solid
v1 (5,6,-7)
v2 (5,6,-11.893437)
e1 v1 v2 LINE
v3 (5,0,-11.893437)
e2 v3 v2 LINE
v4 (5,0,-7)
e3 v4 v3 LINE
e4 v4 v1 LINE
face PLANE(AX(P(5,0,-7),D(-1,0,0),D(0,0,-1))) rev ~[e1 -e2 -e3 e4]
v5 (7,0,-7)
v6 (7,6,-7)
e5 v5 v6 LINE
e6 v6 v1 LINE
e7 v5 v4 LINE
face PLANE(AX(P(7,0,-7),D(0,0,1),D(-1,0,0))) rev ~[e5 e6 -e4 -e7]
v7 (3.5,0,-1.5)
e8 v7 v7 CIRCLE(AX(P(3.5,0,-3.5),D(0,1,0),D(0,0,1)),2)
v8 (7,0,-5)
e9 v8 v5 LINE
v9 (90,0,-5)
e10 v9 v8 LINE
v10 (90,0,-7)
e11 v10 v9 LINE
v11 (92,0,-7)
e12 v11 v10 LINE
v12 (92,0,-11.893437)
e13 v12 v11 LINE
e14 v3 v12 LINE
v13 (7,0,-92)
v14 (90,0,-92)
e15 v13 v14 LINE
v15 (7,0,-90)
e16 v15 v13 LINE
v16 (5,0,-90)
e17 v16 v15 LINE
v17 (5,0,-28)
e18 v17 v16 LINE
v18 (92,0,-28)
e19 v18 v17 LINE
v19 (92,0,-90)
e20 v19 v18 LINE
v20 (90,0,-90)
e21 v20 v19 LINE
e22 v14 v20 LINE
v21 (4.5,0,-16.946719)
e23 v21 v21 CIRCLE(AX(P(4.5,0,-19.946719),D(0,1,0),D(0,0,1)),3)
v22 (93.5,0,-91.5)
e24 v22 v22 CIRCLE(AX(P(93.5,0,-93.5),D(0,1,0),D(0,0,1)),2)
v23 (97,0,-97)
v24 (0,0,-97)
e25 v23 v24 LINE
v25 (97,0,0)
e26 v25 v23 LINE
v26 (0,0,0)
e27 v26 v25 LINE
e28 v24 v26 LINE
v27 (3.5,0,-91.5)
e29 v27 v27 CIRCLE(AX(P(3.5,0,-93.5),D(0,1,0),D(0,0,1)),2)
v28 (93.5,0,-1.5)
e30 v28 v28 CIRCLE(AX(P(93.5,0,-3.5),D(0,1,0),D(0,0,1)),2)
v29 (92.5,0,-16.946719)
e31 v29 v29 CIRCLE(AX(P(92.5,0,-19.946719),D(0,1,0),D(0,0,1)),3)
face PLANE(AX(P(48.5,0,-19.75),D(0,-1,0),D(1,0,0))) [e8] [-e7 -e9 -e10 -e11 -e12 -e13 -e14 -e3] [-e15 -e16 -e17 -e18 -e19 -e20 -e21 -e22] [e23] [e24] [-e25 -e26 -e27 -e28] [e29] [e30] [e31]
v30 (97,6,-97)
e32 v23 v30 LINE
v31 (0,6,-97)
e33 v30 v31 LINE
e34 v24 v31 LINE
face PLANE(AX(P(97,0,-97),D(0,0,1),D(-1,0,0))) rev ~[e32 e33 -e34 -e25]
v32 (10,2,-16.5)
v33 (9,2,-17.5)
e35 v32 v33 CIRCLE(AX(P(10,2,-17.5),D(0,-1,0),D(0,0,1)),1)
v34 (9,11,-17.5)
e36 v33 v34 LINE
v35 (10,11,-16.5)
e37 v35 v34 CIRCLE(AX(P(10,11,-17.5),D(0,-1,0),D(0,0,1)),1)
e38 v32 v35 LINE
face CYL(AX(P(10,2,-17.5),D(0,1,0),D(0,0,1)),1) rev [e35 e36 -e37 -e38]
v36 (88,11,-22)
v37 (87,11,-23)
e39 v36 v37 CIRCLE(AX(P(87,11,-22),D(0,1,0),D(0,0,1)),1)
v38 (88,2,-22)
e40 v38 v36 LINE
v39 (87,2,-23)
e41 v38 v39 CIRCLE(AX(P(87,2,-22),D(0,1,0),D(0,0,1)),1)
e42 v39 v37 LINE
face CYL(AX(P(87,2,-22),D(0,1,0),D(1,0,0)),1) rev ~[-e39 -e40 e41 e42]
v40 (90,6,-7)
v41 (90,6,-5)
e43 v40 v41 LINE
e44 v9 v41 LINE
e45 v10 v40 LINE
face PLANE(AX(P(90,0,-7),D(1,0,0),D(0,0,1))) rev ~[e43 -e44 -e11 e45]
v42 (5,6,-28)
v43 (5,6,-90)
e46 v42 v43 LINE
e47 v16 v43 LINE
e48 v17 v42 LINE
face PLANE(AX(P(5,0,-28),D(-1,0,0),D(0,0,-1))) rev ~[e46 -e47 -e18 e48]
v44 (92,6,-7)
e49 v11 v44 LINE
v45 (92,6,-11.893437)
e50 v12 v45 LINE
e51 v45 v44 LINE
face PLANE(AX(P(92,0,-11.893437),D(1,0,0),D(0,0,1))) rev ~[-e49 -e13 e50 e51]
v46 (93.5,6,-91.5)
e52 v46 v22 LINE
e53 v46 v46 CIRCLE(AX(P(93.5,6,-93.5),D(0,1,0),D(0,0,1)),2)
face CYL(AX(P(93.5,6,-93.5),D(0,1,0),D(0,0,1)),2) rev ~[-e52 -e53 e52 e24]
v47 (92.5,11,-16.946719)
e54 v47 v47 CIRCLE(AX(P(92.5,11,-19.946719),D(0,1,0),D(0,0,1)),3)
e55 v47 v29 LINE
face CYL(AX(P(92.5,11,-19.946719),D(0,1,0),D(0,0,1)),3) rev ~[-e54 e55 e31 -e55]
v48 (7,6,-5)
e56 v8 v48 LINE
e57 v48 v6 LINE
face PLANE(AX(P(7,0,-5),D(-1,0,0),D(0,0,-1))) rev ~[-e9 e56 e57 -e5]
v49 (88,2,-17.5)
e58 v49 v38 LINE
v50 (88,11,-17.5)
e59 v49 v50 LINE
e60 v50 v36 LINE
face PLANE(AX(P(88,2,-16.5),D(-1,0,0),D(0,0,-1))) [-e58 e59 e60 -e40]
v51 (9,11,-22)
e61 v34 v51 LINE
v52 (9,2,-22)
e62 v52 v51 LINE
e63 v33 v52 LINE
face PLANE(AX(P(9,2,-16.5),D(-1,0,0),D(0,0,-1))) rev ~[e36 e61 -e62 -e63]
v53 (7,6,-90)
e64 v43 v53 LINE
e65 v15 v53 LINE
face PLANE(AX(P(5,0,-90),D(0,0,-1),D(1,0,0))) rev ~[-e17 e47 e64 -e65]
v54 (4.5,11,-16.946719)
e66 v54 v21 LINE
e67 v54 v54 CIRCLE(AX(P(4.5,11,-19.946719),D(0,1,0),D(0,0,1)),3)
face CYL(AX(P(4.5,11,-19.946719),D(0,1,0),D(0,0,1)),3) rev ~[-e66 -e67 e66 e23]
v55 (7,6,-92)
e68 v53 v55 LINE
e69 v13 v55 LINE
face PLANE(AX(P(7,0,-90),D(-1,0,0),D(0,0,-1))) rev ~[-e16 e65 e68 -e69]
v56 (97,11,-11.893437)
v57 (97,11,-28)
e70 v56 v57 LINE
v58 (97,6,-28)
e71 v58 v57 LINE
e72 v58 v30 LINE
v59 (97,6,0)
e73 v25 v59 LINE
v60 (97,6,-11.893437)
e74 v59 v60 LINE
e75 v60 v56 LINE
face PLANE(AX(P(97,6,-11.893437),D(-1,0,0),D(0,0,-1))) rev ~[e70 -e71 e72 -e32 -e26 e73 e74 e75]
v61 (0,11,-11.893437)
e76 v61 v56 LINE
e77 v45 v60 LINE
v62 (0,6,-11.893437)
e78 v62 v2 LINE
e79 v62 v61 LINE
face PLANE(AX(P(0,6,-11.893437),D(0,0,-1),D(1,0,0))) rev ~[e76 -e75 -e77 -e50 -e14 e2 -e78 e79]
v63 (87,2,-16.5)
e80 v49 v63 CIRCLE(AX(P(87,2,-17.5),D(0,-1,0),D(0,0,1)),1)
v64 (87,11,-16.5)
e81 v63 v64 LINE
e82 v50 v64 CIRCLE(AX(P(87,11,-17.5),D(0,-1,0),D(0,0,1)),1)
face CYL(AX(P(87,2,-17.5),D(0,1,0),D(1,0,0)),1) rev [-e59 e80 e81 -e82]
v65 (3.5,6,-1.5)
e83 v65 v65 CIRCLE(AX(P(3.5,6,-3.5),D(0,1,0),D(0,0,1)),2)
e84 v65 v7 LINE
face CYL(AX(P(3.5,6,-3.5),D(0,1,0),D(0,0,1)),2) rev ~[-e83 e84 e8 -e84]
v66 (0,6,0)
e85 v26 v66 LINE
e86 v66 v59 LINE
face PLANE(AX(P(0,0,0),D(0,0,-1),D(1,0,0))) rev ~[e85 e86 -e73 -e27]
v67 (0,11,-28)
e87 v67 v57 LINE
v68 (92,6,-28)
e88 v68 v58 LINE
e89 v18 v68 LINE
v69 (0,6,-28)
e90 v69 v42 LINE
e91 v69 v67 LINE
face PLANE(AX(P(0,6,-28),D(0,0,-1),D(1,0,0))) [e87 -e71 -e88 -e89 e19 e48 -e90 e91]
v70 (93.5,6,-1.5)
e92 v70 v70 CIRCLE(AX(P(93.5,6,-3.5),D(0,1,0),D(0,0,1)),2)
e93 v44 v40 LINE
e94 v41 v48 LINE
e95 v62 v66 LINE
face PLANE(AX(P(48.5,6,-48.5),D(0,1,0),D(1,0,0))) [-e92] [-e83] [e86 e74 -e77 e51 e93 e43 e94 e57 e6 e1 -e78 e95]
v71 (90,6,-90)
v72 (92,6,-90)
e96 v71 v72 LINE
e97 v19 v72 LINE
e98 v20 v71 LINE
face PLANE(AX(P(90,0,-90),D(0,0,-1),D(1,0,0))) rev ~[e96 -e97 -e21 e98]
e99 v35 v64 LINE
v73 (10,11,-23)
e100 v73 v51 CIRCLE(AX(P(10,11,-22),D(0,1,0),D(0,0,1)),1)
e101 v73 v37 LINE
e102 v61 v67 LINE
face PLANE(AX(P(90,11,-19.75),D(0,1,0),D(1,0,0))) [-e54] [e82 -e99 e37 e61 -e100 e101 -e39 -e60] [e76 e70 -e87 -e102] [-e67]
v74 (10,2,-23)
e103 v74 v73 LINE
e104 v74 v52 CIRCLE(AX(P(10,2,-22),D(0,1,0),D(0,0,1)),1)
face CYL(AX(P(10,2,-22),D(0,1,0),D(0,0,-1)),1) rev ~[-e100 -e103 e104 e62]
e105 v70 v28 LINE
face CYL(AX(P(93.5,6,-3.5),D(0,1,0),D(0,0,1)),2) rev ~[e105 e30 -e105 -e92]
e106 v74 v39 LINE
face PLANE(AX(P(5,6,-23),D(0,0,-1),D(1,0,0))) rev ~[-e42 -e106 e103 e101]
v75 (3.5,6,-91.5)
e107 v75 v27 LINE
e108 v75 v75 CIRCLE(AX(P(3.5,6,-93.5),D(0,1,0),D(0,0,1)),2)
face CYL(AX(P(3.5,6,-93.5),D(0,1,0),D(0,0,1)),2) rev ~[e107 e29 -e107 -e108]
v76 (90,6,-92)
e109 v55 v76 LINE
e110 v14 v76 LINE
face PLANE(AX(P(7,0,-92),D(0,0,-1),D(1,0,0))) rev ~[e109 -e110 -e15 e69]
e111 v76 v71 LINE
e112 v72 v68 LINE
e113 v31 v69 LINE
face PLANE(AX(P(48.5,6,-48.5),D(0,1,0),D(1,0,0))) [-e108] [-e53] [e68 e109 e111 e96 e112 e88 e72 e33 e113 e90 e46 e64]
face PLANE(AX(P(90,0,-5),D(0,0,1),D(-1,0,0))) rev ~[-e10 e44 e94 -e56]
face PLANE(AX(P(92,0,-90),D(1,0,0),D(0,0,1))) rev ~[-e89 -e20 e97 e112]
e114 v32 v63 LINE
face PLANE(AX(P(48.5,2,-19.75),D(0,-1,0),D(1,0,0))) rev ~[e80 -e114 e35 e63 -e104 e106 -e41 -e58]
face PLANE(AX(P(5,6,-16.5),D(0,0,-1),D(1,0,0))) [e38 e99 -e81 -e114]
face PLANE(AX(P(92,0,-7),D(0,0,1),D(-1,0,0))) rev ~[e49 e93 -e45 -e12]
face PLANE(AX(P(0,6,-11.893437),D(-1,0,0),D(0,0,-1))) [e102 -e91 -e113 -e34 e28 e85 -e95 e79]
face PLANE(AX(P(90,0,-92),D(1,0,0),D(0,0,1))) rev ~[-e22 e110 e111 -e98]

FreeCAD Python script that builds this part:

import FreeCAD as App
import Part
import Sketcher


def edges_at(feature, points):
    """Names of the edges that pass closest to the given points."""
    edges = feature.Shape.Edges
    near = lambda p: min(range(len(edges)), key=lambda i: edges[i].distToShape(Part.Vertex(*p))[0])
    return sorted({f"Edge{near(p) + 1}" for p in points})


def add_polygon(sketch, points):
    """Adds a closed chain of lines whose ends are joined by coincident constraints."""
    first, n = sketch.GeometryCount, len(points)
    for a, b in zip(points, points[1:] + points[:1]):
        sketch.addGeometry(Part.LineSegment(App.Vector(*a, 0), App.Vector(*b, 0)), False)
    for i in range(n):
        sketch.addConstraint(Sketcher.Constraint("Coincident", first + i, 2, first + (i + 1) % n, 1))

doc = App.newDocument("Part")
params = doc.addObject("Spreadsheet::Sheet", "Params")
for row, (alias, value) in enumerate([
    ("sketch1_width", "97 mm"),
    ("sketch1_width2", "2 mm"),
    ("sketch1_width3", "87 mm"),
    ("sketch1_height", "62 mm"),
    ("sketch1_height2", "6.5 mm"),
    ("pad1_length", "6 mm"),
    ("sketch2_width", "87 mm"),
    ("sketch2_height", "6.5 mm"),
    ("pad2_length", "2 mm"),
    ("sketch3_width", "97 mm"),
    ("sketch3_width2", "87 mm"),
    ("sketch3_height", "6.5 mm"),
    ("pad3_length", "5 mm"),
    ("sketch4_diameter", "4 mm"),
    ("sketch5_width", "4 mm"),
    ("sketch5_height", "6.5 mm"),
    ("pad4_length", "9 mm"),
    ("sketch6_diameter", "6 mm"),
    ("pocket2_length", "21 mm"),
    ("fillet_radius", "1 mm"),
], start=1):
    params.set(f"A{row}", alias)
    params.set(f"B{row}", "=" + value)
    params.setAlias(f"B{row}", alias)

body = doc.addObject("PartDesign::Body", "Body")

sketch1 = body.newObject("Sketcher::SketchObject", "Sketch")
sketch1.AttachmentSupport = (doc.getObject("XZ_Plane"), [""])
sketch1.MapMode = "FlatFace"
add_polygon(sketch1, [(0, 0), (97, 0), (97, -97), (0, -97)])
add_polygon(sketch1, [(7, -5), (7, -7), (5, -7), (5, -11.9), (92, -11.9), (92, -7), (90, -7), (90, -5)])
add_polygon(sketch1, [(5, -16.5), (5, -23), (92, -23), (92, -16.5)])
add_polygon(sketch1, [(7, -90), (7, -92), (90, -92), (90, -90), (92, -90), (92, -28), (5, -28), (5, -90)])
sketch1.addConstraint(Sketcher.Constraint("Horizontal", 0))
sketch1.addConstraint(Sketcher.Constraint("Vertical", 1))
sketch1.addConstraint(Sketcher.Constraint("Horizontal", 2))
sketch1.addConstraint(Sketcher.Constraint("Vertical", 3))
sketch1.addConstraint(Sketcher.Constraint("Vertical", 4))
sketch1.addConstraint(Sketcher.Constraint("Horizontal", 5))
sketch1.addConstraint(Sketcher.Constraint("Vertical", 6))
sketch1.addConstraint(Sketcher.Constraint("Horizontal", 7))
sketch1.addConstraint(Sketcher.Constraint("Vertical", 8))
sketch1.addConstraint(Sketcher.Constraint("Horizontal", 9))
sketch1.addConstraint(Sketcher.Constraint("Vertical", 10))
sketch1.addConstraint(Sketcher.Constraint("Horizontal", 11))
sketch1.addConstraint(Sketcher.Constraint("Vertical", 12))
sketch1.addConstraint(Sketcher.Constraint("Horizontal", 13))
sketch1.addConstraint(Sketcher.Constraint("Vertical", 14))
sketch1.addConstraint(Sketcher.Constraint("Horizontal", 15))
sketch1.addConstraint(Sketcher.Constraint("Vertical", 16))
sketch1.addConstraint(Sketcher.Constraint("Horizontal", 17))
sketch1.addConstraint(Sketcher.Constraint("Vertical", 18))
sketch1.addConstraint(Sketcher.Constraint("Horizontal", 19))
sketch1.addConstraint(Sketcher.Constraint("Vertical", 20))
sketch1.addConstraint(Sketcher.Constraint("Horizontal", 21))
sketch1.addConstraint(Sketcher.Constraint("Vertical", 22))
sketch1.addConstraint(Sketcher.Constraint("Horizontal", 23))
sketch1.addConstraint(Sketcher.Constraint("Coincident", 3, 2, -1, 1))
sketch1.addConstraint(Sketcher.Constraint("Horizontal", 5, 2, 8, 2))
sketch1.addConstraint(Sketcher.Constraint("Horizontal", 19, 2, 22, 2))
sketch1.addConstraint(Sketcher.Constraint("Vertical", 6, 2, 12, 2))
sketch1.addConstraint(Sketcher.Constraint("Vertical", 8, 2, 13, 2))
sketch1.addConstraint(Sketcher.Constraint("Vertical", 11, 2, 16, 2))
sketch1.addConstraint(Sketcher.Constraint("Vertical", 10, 2, 17, 2))
sketch1.addConstraint(Sketcher.Constraint("Vertical", 14, 2, 19, 2))
sketch1.addConstraint(Sketcher.Constraint("Vertical", 15, 2, 21, 2))
sketch1.addConstraint(Sketcher.Constraint("Equal", 5, 9))
sketch1.addConstraint(Sketcher.Constraint("Equal", 2, 1))
sketch1.addConstraint(Sketcher.Constraint("Equal", 23, 4))
sketch1.addConstraint(Sketcher.Constraint("Equal", 10, 16))
sketch1.addConstraint(Sketcher.Constraint("DistanceX", 0, 1, 0, 2, 97.0))
sketch1.addConstraint(Sketcher.Constraint("DistanceX", 5, 2, 5, 1, 2.0))
sketch1.addConstraint(Sketcher.Constraint("DistanceX", 7, 1, 7, 2, 87.0))
sketch1.addConstraint(Sketcher.Constraint("DistanceY", 20, 1, 20, 2, 62.0))
sketch1.addConstraint(Sketcher.Constraint("DistanceY", 12, 2, 12, 1, 6.5))
sketch1.addConstraint(Sketcher.Constraint("DistanceX", -1, 1, 4, 2, 7.0))
sketch1.addConstraint(Sketcher.Constraint("DistanceY", 4, 2, -1, 1, 7.0))
sketch1.addConstraint(Sketcher.Constraint("DistanceY", 12, 2, -1, 1, 23.0))
sketch1.addConstraint(Sketcher.Constraint("DistanceY", 16, 2, -1, 1, 92.0))
sketch1.addConstraint(Sketcher.Constraint("DistanceY", 6, 2, 6, 1, 4.893437))
sketch1.setExpression("Constraints[61]", "Params.sketch1_width")
sketch1.setExpression("Constraints[62]", "Params.sketch1_width2")
sketch1.setExpression("Constraints[63]", "Params.sketch1_width3")
sketch1.setExpression("Constraints[64]", "Params.sketch1_height")
sketch1.setExpression("Constraints[65]", "Params.sketch1_height2")
pad1 = body.newObject("PartDesign::Pad", "Pad")
pad1.Profile = sketch1
pad1.setExpression("Length", "Params.pad1_length")
pad1.Reversed = True

sketch2 = body.newObject("Sketcher::SketchObject", "Sketch001")
sketch2.AttachmentSupport = (doc.getObject("XZ_Plane"), [""])
sketch2.MapMode = "FlatFace"
add_polygon(sketch2, [(5, -16), (5, -23), (92, -23), (92, -16)])
sketch2.addConstraint(Sketcher.Constraint("Vertical", 0))
sketch2.addConstraint(Sketcher.Constraint("Horizontal", 1))
sketch2.addConstraint(Sketcher.Constraint("Vertical", 2))
sketch2.addConstraint(Sketcher.Constraint("Horizontal", 3))
sketch2.addConstraint(Sketcher.Constraint("DistanceX", 1, 1, 1, 2, 87.0))
sketch2.addConstraint(Sketcher.Constraint("DistanceY", 0, 2, 0, 1, 6.5))
sketch2.addConstraint(Sketcher.Constraint("DistanceX", -1, 1, 0, 2, 5.0))
sketch2.addConstraint(Sketcher.Constraint("DistanceY", 0, 2, -1, 1, 23.0))
sketch2.setExpression("Constraints[8]", "Params.sketch2_width")
sketch2.setExpression("Constraints[9]", "Params.sketch2_height")
pad2 = body.newObject("PartDesign::Pad", "Pad001")
pad2.Profile = sketch2
pad2.setExpression("Length", "Params.pad2_length")
pad2.Reversed = True

sketch3 = body.newObject("Sketcher::SketchObject", "Sketch002")
sketch3.AttachmentSupport = (doc.getObject("XZ_Plane"), [""])
sketch3.MapMode = "FlatFace"
sketch3.AttachmentOffset = App.Placement(App.Vector(0, 0, -6), App.Rotation())
add_polygon(sketch3, [(0, -28), (0, -12), (97, -12), (97, -28)])
add_polygon(sketch3, [(92, -16), (5, -16), (5, -23), (92, -23)])
sketch3.addConstraint(Sketcher.Constraint("Vertical", 0))
sketch3.addConstraint(Sketcher.Constraint("Horizontal", 1))
sketch3.addConstraint(Sketcher.Constraint("Vertical", 2))
sketch3.addConstraint(Sketcher.Constraint("Horizontal", 3))
sketch3.addConstraint(Sketcher.Constraint("Horizontal", 4))
sketch3.addConstraint(Sketcher.Constraint("Vertical", 5))
sketch3.addConstraint(Sketcher.Constraint("Horizontal", 6))
sketch3.addConstraint(Sketcher.Constraint("Vertical", 7))
sketch3.addConstraint(Sketcher.Constraint("PointOnObject", 0, 2, -2))
sketch3.addConstraint(Sketcher.Constraint("DistanceX", 1, 1, 1, 2, 97.0))
sketch3.addConstraint(Sketcher.Constraint("DistanceX", 4, 2, 4, 1, 87.0))
sketch3.addConstraint(Sketcher.Constraint("DistanceY", 5, 2, 5, 1, 6.5))
sketch3.addConstraint(Sketcher.Constraint("DistanceY", 2, 2, -1, 1, 28.0))
sketch3.addConstraint(Sketcher.Constraint("DistanceX", -1, 1, 4, 2, 5.0))
sketch3.addConstraint(Sketcher.Constraint("DistanceY", 5, 2, -1, 1, 23.0))
sketch3.addConstraint(Sketcher.Constraint("DistanceY", 0, 1, 0, 2, 16.106563))
sketch3.setExpression("Constraints[17]", "Params.sketch3_width")
sketch3.setExpression("Constraints[18]", "Params.sketch3_width2")
sketch3.setExpression("Constraints[19]", "Params.sketch3_height")
pad3 = body.newObject("PartDesign::Pad", "Pad002")
pad3.Profile = sketch3
pad3.setExpression("Length", "Params.pad3_length")
pad3.Reversed = True

sketch4 = body.newObject("Sketcher::SketchObject", "Sketch003")
sketch4.AttachmentSupport = (doc.getObject("XZ_Plane"), [""])
sketch4.MapMode = "FlatFace"
sketch4.AttachmentOffset = App.Placement(App.Vector(0, 0, -6), App.Rotation())
sketch4.addGeometry(Part.Circle(App.Vector(93.5, -93.5, 0), App.Vector(0, 0, 1), 2), False)
sketch4.addGeometry(Part.Circle(App.Vector(3.5, -3.5, 0), App.Vector(0, 0, 1), 2), False)
sketch4.addGeometry(Part.Circle(App.Vector(3.5, -93.5, 0), App.Vector(0, 0, 1), 2), False)
sketch4.addGeometry(Part.Circle(App.Vector(93.5, -3.5, 0), App.Vector(0, 0, 1), 2), False)
sketch4.addConstraint(Sketcher.Constraint("Equal", 0, 1))
sketch4.addConstraint(Sketcher.Constraint("Equal", 1, 2))
sketch4.addConstraint(Sketcher.Constraint("Equal", 2, 3))
sketch4.addConstraint(Sketcher.Constraint("Horizontal", 0, 3, 2, 3))
sketch4.addConstraint(Sketcher.Constraint("Horizontal", 1, 3, 3, 3))
sketch4.addConstraint(Sketcher.Constraint("Vertical", 1, 3, 2, 3))
sketch4.addConstraint(Sketcher.Constraint("Vertical", 0, 3, 3, 3))
sketch4.addConstraint(Sketcher.Constraint("Diameter", 0, 4.0))
sketch4.addConstraint(Sketcher.Constraint("DistanceX", 1, 3, 0, 3, 90.0))
sketch4.addConstraint(Sketcher.Constraint("DistanceY", 0, 3, 1, 3, 90.0))
sketch4.addConstraint(Sketcher.Constraint("DistanceX", -1, 1, 0, 3, 93.5))
sketch4.addConstraint(Sketcher.Constraint("DistanceY", 0, 3, -1, 1, 93.5))
sketch4.setExpression("Constraints[7]", "Params.sketch4_diameter")
pocket1 = body.newObject("PartDesign::Pocket", "Pocket")
pocket1.Profile = sketch4
pocket1.Type = "ThroughAll"
pocket1.Reversed = True

sketch5 = body.newObject("Sketcher::SketchObject", "Sketch004")
sketch5.AttachmentSupport = (doc.getObject("XZ_Plane"), [""])
sketch5.MapMode = "FlatFace"
sketch5.AttachmentOffset = App.Placement(App.Vector(0, 0, -2), App.Rotation())
add_polygon(sketch5, [(88, -23), (88, -16.5), (92, -16.5), (92, -23)])
add_polygon(sketch5, [(5, -23), (5, -16.5), (9, -16.5), (9, -23)])
sketch5.addConstraint(Sketcher.Constraint("Vertical", 0))
sketch5.addConstraint(Sketcher.Constraint("Horizontal", 1))
sketch5.addConstraint(Sketcher.Constraint("Vertical", 2))
sketch5.addConstraint(Sketcher.Constraint("Horizontal", 3))
sketch5.addConstraint(Sketcher.Constraint("Vertical", 4))
sketch5.addConstraint(Sketcher.Constraint("Horizontal", 5))
sketch5.addConstraint(Sketcher.Constraint("Vertical", 6))
sketch5.addConstraint(Sketcher.Constraint("Horizontal", 7))
sketch5.addConstraint(Sketcher.Constraint("Horizontal", 1, 2, 4, 2))
sketch5.addConstraint(Sketcher.Constraint("Horizontal", 3, 2, 6, 2))
sketch5.addConstraint(Sketcher.Constraint("Equal", 3, 5))
sketch5.addConstraint(Sketcher.Constraint("DistanceX", 1, 1, 1, 2, 4.0))
sketch5.addConstraint(Sketcher.Constraint("DistanceY", 0, 1, 0, 2, 6.5))
sketch5.addConstraint(Sketcher.Constraint("DistanceX", -1, 1, 0, 2, 88.0))
sketch5.addConstraint(Sketcher.Constraint("DistanceY", 2, 2, -1, 1, 23.0))
sketch5.addConstraint(Sketcher.Constraint("DistanceX", -1, 1, 4, 2, 5.0))
sketch5.setExpression("Constraints[19]", "Params.sketch5_width")
sketch5.setExpression("Constraints[20]", "Params.sketch5_height")
pad4 = body.newObject("PartDesign::Pad", "Pad003")
pad4.Profile = sketch5
pad4.setExpression("Length", "Params.pad4_length")
pad4.Reversed = True

sketch6 = body.newObject("Sketcher::SketchObject", "Sketch005")
sketch6.AttachmentSupport = (doc.getObject("XZ_Plane"), [""])
sketch6.MapMode = "FlatFace"
sketch6.AttachmentOffset = App.Placement(App.Vector(0, 0, -11), App.Rotation())
sketch6.addGeometry(Part.Circle(App.Vector(92.5, -19.9, 0), App.Vector(0, 0, 1), 3), False)
sketch6.addGeometry(Part.Circle(App.Vector(4.5, -19.9, 0), App.Vector(0, 0, 1), 3), False)
sketch6.addConstraint(Sketcher.Constraint("Equal", 0, 1))
sketch6.addConstraint(Sketcher.Constraint("Horizontal", 0, 3, 1, 3))
sketch6.addConstraint(Sketcher.Constraint("Diameter", 0, 6.0))
sketch6.addConstraint(Sketcher.Constraint("DistanceX", 1, 3, 0, 3, 88.0))
sketch6.addConstraint(Sketcher.Constraint("DistanceX", -1, 1, 0, 3, 92.5))
sketch6.addConstraint(Sketcher.Constraint("DistanceY", 0, 3, -1, 1, 19.946719))
sketch6.setExpression("Constraints[2]", "Params.sketch6_diameter")
pocket2 = body.newObject("PartDesign::Pocket", "Pocket001")
pocket2.Profile = sketch6
pocket2.setExpression("Length", "Params.pocket2_length")
pocket2.Reversed = True
doc.recompute()

fillet = body.newObject("PartDesign::Fillet", "Fillet")
fillet.Base = (pocket2, edges_at(pocket2, [
    (88, 6.5, -23),
    (88, 6.5, -16.5),
    (9, 6.5, -16.5),
    (9, 6.5, -23),
]))
fillet.setExpression("Radius", "Params.fillet_radius")

doc.recompute()
